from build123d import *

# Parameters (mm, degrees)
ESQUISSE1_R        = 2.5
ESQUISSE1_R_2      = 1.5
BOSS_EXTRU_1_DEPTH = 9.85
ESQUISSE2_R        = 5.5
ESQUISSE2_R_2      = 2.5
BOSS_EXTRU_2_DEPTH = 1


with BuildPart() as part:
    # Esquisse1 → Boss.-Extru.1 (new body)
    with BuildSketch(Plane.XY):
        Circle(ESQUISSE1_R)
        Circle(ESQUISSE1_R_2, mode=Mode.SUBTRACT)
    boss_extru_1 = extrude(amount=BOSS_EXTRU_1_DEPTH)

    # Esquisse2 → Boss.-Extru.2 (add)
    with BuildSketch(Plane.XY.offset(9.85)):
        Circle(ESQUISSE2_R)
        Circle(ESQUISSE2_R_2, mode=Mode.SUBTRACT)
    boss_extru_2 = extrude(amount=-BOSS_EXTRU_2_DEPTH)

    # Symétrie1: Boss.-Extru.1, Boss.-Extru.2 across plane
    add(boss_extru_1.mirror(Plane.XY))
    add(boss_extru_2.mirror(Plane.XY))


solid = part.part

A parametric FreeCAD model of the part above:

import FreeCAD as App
import Part
import Sketcher

V = App.Vector

doc = App.newDocument("Part")
params = doc.addObject("Spreadsheet::Sheet", "Params")
for row, (alias, value) in enumerate([
    ("sketch1_diameter", "5 mm"),
    ("sketch1_diameter2", "3 mm"),
    ("pad1_length", "9.85 mm"),
    ("sketch2_diameter", "11 mm"),
    ("sketch2_diameter2", "5 mm"),
    ("pad2_length", "1 mm"),
], start=1):
    params.set(f"A{row}", alias)
    params.set(f"B{row}", "=" + value)
    params.setAlias(f"B{row}", alias)

body = doc.addObject("PartDesign::Body", "Body")

# Sketch on XY plane
sketch1 = body.newObject("Sketcher::SketchObject", "Sketch")
sketch1.AttachmentSupport = (doc.getObject("XY_Plane"), [""])
sketch1.MapMode = "FlatFace"
sketch1.addGeometry(Part.Circle(V(0, 0, 0), V(0, 0, 1), 2.5), False)
sketch1.addGeometry(Part.Circle(V(0, 0, 0), V(0, 0, 1), 1.5), False)
sketch1.addConstraint(Sketcher.Constraint("Coincident", 0, 3, -1, 1))
sketch1.addConstraint(Sketcher.Constraint("Coincident", 1, 3, -1, 1))
sketch1.addConstraint(Sketcher.Constraint("Diameter", 0, 5.0))
sketch1.addConstraint(Sketcher.Constraint("Diameter", 1, 3.0))
sketch1.setExpression("Constraints[2]", "Params.sketch1_diameter")
sketch1.setExpression("Constraints[3]", "Params.sketch1_diameter2")
pad1 = body.newObject("PartDesign::Pad", "Pad")
pad1.Profile = sketch1
pad1.setExpression("Length", "Params.pad1_length")

# Sketch on XY plane
sketch2 = body.newObject("Sketcher::SketchObject", "Sketch001")
sketch2.AttachmentSupport = (doc.getObject("XY_Plane"), [""])
sketch2.MapMode = "FlatFace"
sketch2.AttachmentOffset = App.Placement(V(0, 0, 9.85), App.Rotation())
sketch2.addGeometry(Part.Circle(V(0, 0, 0), V(0, 0, 1), 5.5), False)
sketch2.addGeometry(Part.Circle(V(0, 0, 0), V(0, 0, 1), 2.5), False)
sketch2.addConstraint(Sketcher.Constraint("Coincident", 0, 3, -1, 1))
sketch2.addConstraint(Sketcher.Constraint("Coincident", 1, 3, -1, 1))
sketch2.addConstraint(Sketcher.Constraint("Diameter", 0, 11.0))
sketch2.addConstraint(Sketcher.Constraint("Diameter", 1, 5.0))
sketch2.setExpression("Constraints[2]", "Params.sketch2_diameter")
sketch2.setExpression("Constraints[3]", "Params.sketch2_diameter2")
pad2 = body.newObject("PartDesign::Pad", "Pad001")
pad2.Profile = sketch2
pad2.setExpression("Length", "Params.pad2_length")
pad2.Reversed = True
doc.recompute()

mirrored = body.newObject("PartDesign::Mirrored", "Mirrored")
mirrored.Originals = [pad1, pad2]
mirrored.MirrorPlane = (doc.getObject("XY_Plane"), [""])
body.Tip = mirrored

doc.recompute()
